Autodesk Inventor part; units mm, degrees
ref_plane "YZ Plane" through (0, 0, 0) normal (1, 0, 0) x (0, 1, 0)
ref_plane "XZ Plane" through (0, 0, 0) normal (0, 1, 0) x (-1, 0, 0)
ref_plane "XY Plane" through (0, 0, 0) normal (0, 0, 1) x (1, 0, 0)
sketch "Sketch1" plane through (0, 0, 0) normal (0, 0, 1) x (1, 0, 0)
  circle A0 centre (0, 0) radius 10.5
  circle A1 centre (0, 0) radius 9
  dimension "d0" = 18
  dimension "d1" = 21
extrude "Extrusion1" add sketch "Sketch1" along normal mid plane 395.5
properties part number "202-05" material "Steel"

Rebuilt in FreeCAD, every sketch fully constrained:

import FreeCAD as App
import Part
import Sketcher
Q = App.Units.Quantity

doc = App.newDocument("Part")
body = doc.addObject("PartDesign::Body", "Body")

# Sketch on XY plane
sketch1 = body.newObject("Sketcher::SketchObject", "Sketch")
sketch1.AttachmentSupport = (doc.getObject("XY_Plane"), [""])
sketch1.MapMode = "FlatFace"
sketch1.addGeometry(Part.Circle(App.Vector(0, 0, 0), App.Vector(0, 0, 1), 10), False)
sketch1.addGeometry(Part.Circle(App.Vector(0, 0, 0), App.Vector(0, 0, 1), 9), False)
sketch1.addConstraint(Sketcher.Constraint("Coincident", 0, 3, -1, 1))
sketch1.addConstraint(Sketcher.Constraint("Coincident", 1, 3, -1, 1))
sketch1.addConstraint(Sketcher.Constraint("Diameter", 0, Q("21 mm")))
sketch1.addConstraint(Sketcher.Constraint("Diameter", 1, Q("18 mm")))
pad1 = body.newObject("PartDesign::Pad", "Pad")
pad1.Profile = sketch1
pad1.Length = 395.5
pad1.Midplane = True

doc.recompute()
